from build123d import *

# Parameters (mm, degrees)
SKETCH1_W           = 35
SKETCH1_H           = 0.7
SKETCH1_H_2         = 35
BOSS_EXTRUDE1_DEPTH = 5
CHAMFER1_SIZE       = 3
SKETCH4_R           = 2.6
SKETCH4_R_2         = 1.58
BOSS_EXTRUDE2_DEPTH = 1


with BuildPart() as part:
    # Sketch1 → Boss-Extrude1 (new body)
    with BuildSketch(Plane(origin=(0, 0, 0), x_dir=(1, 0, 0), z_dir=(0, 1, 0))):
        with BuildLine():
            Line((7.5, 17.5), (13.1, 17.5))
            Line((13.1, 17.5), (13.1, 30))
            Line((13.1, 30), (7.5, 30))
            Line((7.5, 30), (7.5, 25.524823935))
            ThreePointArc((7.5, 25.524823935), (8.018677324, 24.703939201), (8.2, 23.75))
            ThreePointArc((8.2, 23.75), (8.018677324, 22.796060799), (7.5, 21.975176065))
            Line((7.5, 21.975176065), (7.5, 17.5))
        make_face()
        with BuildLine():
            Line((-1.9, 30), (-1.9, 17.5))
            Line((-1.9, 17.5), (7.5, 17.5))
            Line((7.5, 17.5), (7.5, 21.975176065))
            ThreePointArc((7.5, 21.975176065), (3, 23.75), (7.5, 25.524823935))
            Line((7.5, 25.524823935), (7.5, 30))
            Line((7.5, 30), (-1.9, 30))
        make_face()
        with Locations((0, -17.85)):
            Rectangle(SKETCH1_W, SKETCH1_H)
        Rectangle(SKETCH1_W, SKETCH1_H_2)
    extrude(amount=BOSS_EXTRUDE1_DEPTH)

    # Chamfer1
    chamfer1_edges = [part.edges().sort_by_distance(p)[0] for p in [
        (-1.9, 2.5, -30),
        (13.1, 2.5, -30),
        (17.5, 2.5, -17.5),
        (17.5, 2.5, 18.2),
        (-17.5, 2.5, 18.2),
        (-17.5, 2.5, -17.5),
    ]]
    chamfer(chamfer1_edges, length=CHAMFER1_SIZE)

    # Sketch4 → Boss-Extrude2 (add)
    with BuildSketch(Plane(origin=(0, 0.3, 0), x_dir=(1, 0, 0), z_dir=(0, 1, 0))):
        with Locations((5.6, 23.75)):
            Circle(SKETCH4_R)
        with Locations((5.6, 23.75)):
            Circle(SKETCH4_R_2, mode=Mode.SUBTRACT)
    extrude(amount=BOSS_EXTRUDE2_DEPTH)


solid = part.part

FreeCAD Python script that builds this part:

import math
import FreeCAD as App
import Part
import Sketcher
Q = App.Units.Quantity


def edges_at(feature, points):
    """Names of the edges that pass closest to the given points."""
    edges = feature.Shape.Edges
    near = lambda p: min(range(len(edges)), key=lambda i: edges[i].distToShape(Part.Vertex(*p))[0])
    return sorted({f"Edge{near(p) + 1}" for p in points})


def add_polygon(sketch, points):
    """Adds a closed chain of lines whose ends are joined by coincident constraints."""
    first, n = sketch.GeometryCount, len(points)
    for a, b in zip(points, points[1:] + points[:1]):
        sketch.addGeometry(Part.LineSegment(App.Vector(*a, 0), App.Vector(*b, 0)), False)
    for i in range(n):
        sketch.addConstraint(Sketcher.Constraint("Coincident", first + i, 2, first + (i + 1) % n, 1))

doc = App.newDocument("Part")
body = doc.addObject("PartDesign::Body", "Body")

# Sketch on XZ plane
sketch1 = doc.addObject("Sketcher::SketchObject", "Sketch")
body.addObject(sketch1)
sketch1.AttachmentSupport = (doc.XZ_Plane, [""])
sketch1.MapMode = "FlatFace"
add_polygon(sketch1, [(13.1, -17.5), (13.1, -30), (-1.9, -30), (-1.9, -17.5), (-17.5, -17.5), (-17.5, 18.2), (17.5, 18.2), (17.5, -17.5)])  # lines 0-7
sketch1.addGeometry(Part.ArcOfCircle(Part.Circle(App.Vector(5.6, -23.7, 0), App.Vector(0, 0, 1), 2.6), math.radians(-43), math.radians(0)), False)  # 8
sketch1.addGeometry(Part.ArcOfCircle(Part.Circle(App.Vector(5.6, -23.8, 0), App.Vector(0, 0, 1), 2.6), math.radians(0), math.radians(43)), False)  # 9
sketch1.addGeometry(Part.ArcOfCircle(Part.Circle(App.Vector(5.6, -23.8, 0), App.Vector(0, 0, 1), 2.6), math.radians(43), math.radians(317)), False)  # 10
sketch1.addConstraint(Sketcher.Constraint("Tangent", 8, 2, 9, 1))
sketch1.addConstraint(Sketcher.Constraint("Tangent", 9, 2, 10, 1))
sketch1.addConstraint(Sketcher.Constraint("Tangent", 10, 2, 8, 1))
sketch1.addConstraint(Sketcher.Constraint("Vertical", 0))
sketch1.addConstraint(Sketcher.Constraint("Horizontal", 1))
sketch1.addConstraint(Sketcher.Constraint("Vertical", 2))
sketch1.addConstraint(Sketcher.Constraint("Horizontal", 3))
sketch1.addConstraint(Sketcher.Constraint("Vertical", 4))
sketch1.addConstraint(Sketcher.Constraint("Horizontal", 5))
sketch1.addConstraint(Sketcher.Constraint("Vertical", 6))
sketch1.addConstraint(Sketcher.Constraint("Horizontal", 7))
sketch1.addConstraint(Sketcher.Constraint("Symmetric", 3, 2, 6, 2, -2))
sketch1.addConstraint(Sketcher.Constraint("Horizontal", 10, 3, 8, 2))
sketch1.addConstraint(Sketcher.Constraint("Vertical", 9, 2, 10, 2))
sketch1.addConstraint(Sketcher.Constraint("Radius", 8, Q("2.6 mm")))
sketch1.addConstraint(Sketcher.Constraint("DistanceX", 1, 2, 1, 1, Q("15 mm")))
sketch1.addConstraint(Sketcher.Constraint("DistanceX", 5, 1, 5, 2, Q("35 mm")))
sketch1.addConstraint(Sketcher.Constraint("DistanceX", 3, 2, 3, 1, Q("15.6 mm")))
sketch1.addConstraint(Sketcher.Constraint("DistanceY", 0, 2, 0, 1, Q("12.5 mm")))
sketch1.addConstraint(Sketcher.Constraint("DistanceY", 4, 1, 4, 2, Q("35.7 mm")))
sketch1.addConstraint(Sketcher.Constraint("DistanceY", 0, 2, -1, 1, Q("30 mm")))
sketch1.addConstraint(Sketcher.Constraint("DistanceX", -1, 1, 8, 3, Q("5.6 mm")))
sketch1.addConstraint(Sketcher.Constraint("DistanceX", -1, 1, 9, 2, Q("7.5 mm")))
sketch1.addConstraint(Sketcher.Constraint("DistanceY", 8, 3, -1, 1, Q("23.75 mm")))
pad1 = doc.addObject("PartDesign::Pad", "Pad")
body.addObject(pad1)
pad1.Profile = sketch1
pad1.Length = 5
pad1.Reversed = True
doc.recompute()

chamfer = doc.addObject("PartDesign::Chamfer", "Chamfer")
body.addObject(chamfer)
chamfer.Base = (pad1, edges_at(pad1, [
    (-1.9, 2.5, -30),
    (13.1, 2.5, -30),
    (17.5, 2.5, -17.5),
    (17.5, 2.5, 18.2),
    (-17.5, 2.5, 18.2),
    (-17.5, 2.5, -17.5),
]))
chamfer.Size = 3

# Sketch on XZ plane
sketch2 = doc.addObject("Sketcher::SketchObject", "Sketch001")
body.addObject(sketch2)
sketch2.AttachmentSupport = (doc.XZ_Plane, [""])
sketch2.MapMode = "FlatFace"
sketch2.AttachmentOffset = App.Placement(App.Vector(0, 0, -0.3), App.Rotation())
sketch2.addGeometry(Part.Circle(App.Vector(5.6, -23.8, 0), App.Vector(0, 0, 1), 2.6), False)
sketch2.addGeometry(Part.Circle(App.Vector(5.6, -23.8, 0), App.Vector(0, 0, 1), 1.6), False)
sketch2.addConstraint(Sketcher.Constraint("Coincident", 1, 3, 0, 3))
sketch2.addConstraint(Sketcher.Constraint("Diameter", 0, Q("5.2 mm")))
sketch2.addConstraint(Sketcher.Constraint("Diameter", 1, Q("3.16 mm")))
sketch2.addConstraint(Sketcher.Constraint("DistanceX", -1, 1, 0, 3, Q("5.6 mm")))
sketch2.addConstraint(Sketcher.Constraint("DistanceY", 0, 3, -1, 1, Q("23.75 mm")))
pad2 = doc.addObject("PartDesign::Pad", "Pad001")
body.addObject(pad2)
pad2.Profile = sketch2
pad2.Length = 1
pad2.Reversed = True

doc.recompute()
